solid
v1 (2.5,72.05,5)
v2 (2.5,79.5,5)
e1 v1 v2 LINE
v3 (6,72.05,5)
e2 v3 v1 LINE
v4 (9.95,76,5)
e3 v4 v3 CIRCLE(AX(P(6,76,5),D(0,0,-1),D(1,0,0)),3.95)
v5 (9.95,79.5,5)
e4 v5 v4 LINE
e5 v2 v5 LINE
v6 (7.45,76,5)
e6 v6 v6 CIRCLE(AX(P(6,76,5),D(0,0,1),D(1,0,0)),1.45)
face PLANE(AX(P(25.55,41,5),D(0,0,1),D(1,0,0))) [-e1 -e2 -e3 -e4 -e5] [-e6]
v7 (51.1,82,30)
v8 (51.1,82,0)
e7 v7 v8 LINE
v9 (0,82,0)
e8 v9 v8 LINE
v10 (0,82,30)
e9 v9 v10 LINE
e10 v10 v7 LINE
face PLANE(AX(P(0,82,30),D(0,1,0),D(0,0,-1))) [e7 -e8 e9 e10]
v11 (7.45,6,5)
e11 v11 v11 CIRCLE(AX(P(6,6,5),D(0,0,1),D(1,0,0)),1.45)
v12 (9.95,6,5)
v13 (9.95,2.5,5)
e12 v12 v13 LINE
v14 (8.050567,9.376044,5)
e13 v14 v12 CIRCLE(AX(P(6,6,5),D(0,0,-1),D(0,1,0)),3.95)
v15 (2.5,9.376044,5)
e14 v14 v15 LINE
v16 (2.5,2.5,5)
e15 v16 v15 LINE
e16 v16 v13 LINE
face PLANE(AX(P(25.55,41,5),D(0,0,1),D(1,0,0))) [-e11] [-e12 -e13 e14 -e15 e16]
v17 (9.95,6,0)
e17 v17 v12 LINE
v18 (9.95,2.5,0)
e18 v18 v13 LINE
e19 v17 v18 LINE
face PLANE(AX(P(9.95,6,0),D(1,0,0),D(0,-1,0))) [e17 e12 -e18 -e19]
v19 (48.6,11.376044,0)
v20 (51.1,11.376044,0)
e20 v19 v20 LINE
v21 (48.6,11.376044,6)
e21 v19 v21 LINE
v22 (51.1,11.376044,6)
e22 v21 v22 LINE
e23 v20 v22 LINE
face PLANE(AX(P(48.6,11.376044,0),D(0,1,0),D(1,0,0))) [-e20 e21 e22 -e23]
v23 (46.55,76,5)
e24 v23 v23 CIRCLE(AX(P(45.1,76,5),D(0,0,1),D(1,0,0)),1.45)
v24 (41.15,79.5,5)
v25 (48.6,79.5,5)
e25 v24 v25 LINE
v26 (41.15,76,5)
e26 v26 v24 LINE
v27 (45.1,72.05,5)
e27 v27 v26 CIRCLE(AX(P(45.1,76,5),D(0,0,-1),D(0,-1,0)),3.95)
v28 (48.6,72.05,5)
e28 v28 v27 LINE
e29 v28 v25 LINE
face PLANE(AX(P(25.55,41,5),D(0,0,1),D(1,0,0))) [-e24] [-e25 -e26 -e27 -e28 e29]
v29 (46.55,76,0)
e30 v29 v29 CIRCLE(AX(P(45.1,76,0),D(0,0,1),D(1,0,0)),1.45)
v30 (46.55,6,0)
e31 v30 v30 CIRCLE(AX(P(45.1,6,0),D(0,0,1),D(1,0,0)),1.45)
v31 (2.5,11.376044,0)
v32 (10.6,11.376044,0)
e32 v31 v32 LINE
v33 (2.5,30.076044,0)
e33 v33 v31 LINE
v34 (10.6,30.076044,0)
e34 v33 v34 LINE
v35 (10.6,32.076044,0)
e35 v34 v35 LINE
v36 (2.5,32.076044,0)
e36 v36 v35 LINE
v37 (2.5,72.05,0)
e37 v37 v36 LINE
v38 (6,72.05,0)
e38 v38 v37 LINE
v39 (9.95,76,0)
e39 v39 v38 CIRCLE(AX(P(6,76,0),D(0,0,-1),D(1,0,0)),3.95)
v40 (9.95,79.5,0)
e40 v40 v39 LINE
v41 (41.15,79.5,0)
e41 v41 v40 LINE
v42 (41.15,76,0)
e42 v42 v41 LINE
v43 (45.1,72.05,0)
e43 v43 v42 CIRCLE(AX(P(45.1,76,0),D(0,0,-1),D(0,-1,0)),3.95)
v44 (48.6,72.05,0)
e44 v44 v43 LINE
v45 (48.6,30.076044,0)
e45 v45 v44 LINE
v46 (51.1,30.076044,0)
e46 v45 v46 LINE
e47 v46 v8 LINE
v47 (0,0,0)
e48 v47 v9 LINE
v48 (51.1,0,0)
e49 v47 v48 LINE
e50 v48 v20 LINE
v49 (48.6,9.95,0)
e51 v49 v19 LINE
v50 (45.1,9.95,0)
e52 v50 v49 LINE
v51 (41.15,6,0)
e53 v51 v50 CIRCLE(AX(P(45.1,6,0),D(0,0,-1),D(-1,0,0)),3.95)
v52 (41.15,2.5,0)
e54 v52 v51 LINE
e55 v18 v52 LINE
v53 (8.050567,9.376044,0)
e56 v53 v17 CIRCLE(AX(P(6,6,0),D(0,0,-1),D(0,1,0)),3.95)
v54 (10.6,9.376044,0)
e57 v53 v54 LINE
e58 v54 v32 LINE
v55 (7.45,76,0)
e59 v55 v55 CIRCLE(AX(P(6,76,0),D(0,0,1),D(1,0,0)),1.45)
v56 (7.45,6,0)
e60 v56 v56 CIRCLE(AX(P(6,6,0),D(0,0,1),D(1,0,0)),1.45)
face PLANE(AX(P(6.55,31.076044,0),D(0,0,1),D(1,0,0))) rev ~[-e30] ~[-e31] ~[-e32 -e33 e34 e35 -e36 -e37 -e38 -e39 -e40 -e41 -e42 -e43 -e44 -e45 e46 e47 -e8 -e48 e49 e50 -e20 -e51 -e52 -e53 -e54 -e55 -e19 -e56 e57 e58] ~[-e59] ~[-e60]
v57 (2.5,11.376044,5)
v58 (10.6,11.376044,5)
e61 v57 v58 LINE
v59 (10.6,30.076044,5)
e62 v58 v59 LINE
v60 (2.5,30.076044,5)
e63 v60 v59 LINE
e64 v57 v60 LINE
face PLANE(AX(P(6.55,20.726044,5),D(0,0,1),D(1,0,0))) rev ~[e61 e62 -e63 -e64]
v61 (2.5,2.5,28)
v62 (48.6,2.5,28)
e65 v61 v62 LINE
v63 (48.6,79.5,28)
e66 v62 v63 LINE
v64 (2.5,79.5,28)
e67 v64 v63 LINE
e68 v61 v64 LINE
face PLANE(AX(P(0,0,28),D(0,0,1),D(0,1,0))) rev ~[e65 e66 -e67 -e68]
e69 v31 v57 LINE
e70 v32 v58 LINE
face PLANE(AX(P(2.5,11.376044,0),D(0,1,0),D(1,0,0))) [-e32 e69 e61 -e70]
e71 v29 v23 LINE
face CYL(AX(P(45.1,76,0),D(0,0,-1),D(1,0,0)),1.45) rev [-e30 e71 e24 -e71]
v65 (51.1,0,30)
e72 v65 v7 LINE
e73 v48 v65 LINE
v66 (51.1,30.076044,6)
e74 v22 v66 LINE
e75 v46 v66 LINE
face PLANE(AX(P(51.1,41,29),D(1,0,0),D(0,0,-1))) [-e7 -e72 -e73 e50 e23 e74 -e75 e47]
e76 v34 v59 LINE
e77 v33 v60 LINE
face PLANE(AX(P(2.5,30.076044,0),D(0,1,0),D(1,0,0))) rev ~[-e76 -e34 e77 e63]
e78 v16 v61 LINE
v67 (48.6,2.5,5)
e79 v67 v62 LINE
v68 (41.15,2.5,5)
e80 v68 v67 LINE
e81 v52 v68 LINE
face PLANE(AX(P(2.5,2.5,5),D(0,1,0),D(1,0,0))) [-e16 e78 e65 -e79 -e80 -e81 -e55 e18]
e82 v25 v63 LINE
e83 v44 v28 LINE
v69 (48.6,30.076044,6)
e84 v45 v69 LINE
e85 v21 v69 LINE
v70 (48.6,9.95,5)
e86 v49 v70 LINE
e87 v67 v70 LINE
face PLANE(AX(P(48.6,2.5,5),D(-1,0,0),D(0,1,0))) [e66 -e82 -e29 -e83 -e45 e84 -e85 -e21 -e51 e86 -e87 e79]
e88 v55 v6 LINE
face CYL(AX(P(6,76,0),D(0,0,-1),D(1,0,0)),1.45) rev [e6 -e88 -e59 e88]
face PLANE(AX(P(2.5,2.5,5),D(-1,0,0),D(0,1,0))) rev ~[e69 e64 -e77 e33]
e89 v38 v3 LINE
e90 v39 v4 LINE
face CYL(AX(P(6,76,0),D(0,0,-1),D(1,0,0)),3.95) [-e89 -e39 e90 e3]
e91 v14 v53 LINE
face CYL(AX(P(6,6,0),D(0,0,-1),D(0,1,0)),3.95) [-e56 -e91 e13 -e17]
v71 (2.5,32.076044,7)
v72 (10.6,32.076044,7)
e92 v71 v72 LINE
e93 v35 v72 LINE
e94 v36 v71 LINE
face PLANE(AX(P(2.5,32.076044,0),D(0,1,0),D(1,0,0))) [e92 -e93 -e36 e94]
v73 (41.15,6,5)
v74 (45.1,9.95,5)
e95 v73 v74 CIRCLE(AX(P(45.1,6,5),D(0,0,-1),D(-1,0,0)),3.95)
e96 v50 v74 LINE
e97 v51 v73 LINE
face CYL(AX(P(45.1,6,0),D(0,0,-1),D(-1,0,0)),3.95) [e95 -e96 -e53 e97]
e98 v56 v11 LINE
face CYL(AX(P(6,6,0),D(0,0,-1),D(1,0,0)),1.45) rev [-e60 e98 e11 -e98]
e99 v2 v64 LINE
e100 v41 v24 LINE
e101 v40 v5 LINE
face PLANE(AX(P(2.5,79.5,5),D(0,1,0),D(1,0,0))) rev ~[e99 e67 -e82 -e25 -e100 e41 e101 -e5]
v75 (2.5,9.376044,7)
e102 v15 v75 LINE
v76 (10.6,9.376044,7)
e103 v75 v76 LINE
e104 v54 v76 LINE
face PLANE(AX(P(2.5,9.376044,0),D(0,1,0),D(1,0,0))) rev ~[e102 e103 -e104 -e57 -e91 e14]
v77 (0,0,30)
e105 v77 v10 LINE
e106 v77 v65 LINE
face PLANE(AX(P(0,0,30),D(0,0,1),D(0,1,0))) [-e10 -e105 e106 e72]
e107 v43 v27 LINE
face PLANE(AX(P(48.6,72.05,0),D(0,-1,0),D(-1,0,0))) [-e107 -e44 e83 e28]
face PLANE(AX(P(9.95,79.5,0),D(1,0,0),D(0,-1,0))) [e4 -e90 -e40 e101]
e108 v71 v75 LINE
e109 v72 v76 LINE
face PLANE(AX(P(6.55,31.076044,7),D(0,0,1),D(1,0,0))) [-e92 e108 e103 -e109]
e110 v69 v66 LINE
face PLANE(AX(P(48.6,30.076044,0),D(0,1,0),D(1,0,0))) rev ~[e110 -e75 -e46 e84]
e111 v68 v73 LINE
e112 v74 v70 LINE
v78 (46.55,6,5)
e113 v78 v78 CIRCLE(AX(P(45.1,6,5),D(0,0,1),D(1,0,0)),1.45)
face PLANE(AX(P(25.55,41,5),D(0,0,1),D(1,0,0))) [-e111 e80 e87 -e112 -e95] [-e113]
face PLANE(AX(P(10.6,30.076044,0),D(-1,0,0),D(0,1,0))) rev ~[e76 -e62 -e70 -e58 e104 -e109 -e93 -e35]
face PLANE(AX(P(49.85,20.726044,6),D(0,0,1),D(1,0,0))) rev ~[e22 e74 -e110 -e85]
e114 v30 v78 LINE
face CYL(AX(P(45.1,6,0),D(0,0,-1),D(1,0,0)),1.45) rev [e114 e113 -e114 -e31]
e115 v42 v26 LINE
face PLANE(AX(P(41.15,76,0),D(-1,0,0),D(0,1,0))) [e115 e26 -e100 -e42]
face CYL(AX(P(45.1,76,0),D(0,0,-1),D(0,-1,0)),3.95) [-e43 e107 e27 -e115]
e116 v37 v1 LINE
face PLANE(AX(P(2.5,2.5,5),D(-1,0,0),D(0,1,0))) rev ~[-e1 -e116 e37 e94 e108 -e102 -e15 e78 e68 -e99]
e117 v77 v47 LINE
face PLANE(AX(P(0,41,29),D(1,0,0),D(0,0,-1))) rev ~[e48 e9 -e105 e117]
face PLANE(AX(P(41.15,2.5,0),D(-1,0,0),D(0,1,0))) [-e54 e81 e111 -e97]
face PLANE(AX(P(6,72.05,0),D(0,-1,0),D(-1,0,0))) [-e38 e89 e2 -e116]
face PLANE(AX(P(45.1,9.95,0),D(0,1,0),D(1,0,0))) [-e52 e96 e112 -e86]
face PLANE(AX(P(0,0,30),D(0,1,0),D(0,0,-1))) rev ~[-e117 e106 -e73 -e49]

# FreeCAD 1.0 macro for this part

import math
import FreeCAD as App
import Part
import Sketcher
Q = App.Units.Quantity


def add_polygon(sketch, points):
    """Adds a closed chain of lines whose ends are joined by coincident constraints."""
    first, n = sketch.GeometryCount, len(points)
    for a, b in zip(points, points[1:] + points[:1]):
        sketch.addGeometry(Part.LineSegment(App.Vector(*a, 0), App.Vector(*b, 0)), False)
    for i in range(n):
        sketch.addConstraint(Sketcher.Constraint("Coincident", first + i, 2, first + (i + 1) % n, 1))

doc = App.newDocument("Part")
body = doc.addObject("PartDesign::Body", "Body")

# Sketch on XY plane
sketch1 = body.newObject("Sketcher::SketchObject", "Sketch")
sketch1.AttachmentSupport = (doc.getObject("XY_Plane"), [""])
sketch1.MapMode = "FlatFace"
add_polygon(sketch1, [(0, 82), (0, 0), (51.1, 0), (51.1, 82)])  # lines 0-3
sketch1.addGeometry(Part.Circle(App.Vector(6, 6, 0), App.Vector(0, 0, 1), 1.4), False)  # 4
sketch1.addGeometry(Part.Circle(App.Vector(45.1, 6, 0), App.Vector(0, 0, 1), 1.4), False)  # 5
sketch1.addGeometry(Part.Circle(App.Vector(6, 76, 0), App.Vector(0, 0, 1), 1.4), False)  # 6
sketch1.addGeometry(Part.LineSegment(App.Vector(2.5, 72, 0), App.Vector(6, 72, 0)), False)  # 7
sketch1.addGeometry(Part.ArcOfCircle(Part.Circle(App.Vector(6, 76, 0), App.Vector(0, 0, 1), 3.9), math.radians(-90), math.radians(0)), False)  # 8
sketch1.addGeometry(Part.LineSegment(App.Vector(9.9, 76, 0), App.Vector(9.9, 79.5, 0)), False)  # 9
sketch1.addGeometry(Part.LineSegment(App.Vector(9.9, 79.5, 0), App.Vector(41.1, 79.5, 0)), False)  # 10
sketch1.addGeometry(Part.LineSegment(App.Vector(41.1, 79.5, 0), App.Vector(41.1, 76, 0)), False)  # 11
sketch1.addGeometry(Part.ArcOfCircle(Part.Circle(App.Vector(45.1, 76, 0), App.Vector(0, 0, 1), 3.9), math.radians(180), math.radians(270)), False)  # 12
sketch1.addGeometry(Part.LineSegment(App.Vector(45.1, 72, 0), App.Vector(48.6, 72, 0)), False)  # 13
sketch1.addGeometry(Part.LineSegment(App.Vector(48.6, 72, 0), App.Vector(48.6, 9.9, 0)), False)  # 14
sketch1.addGeometry(Part.LineSegment(App.Vector(48.6, 9.9, 0), App.Vector(45.1, 9.9, 0)), False)  # 15
sketch1.addGeometry(Part.ArcOfCircle(Part.Circle(App.Vector(45.1, 6, 0), App.Vector(0, 0, 1), 3.9), math.radians(90), math.radians(180)), False)  # 16
sketch1.addGeometry(Part.LineSegment(App.Vector(41.1, 6, 0), App.Vector(41.1, 2.5, 0)), False)  # 17
sketch1.addGeometry(Part.LineSegment(App.Vector(41.1, 2.5, 0), App.Vector(9.9, 2.5, 0)), False)  # 18
sketch1.addGeometry(Part.LineSegment(App.Vector(9.9, 2.5, 0), App.Vector(9.9, 6, 0)), False)  # 19
sketch1.addGeometry(Part.ArcOfCircle(Part.Circle(App.Vector(6, 6, 0), App.Vector(0, 0, 1), 3.9), math.radians(0), math.radians(90)), False)  # 20
sketch1.addGeometry(Part.LineSegment(App.Vector(6, 9.9, 0), App.Vector(2.5, 9.9, 0)), False)  # 21
sketch1.addGeometry(Part.LineSegment(App.Vector(2.5, 9.9, 0), App.Vector(2.5, 72, 0)), False)  # 22
sketch1.addGeometry(Part.Circle(App.Vector(45.1, 76, 0), App.Vector(0, 0, 1), 1.4), False)  # 23
sketch1.addConstraint([
    Sketcher.Constraint("Tangent", 7, 2, 8, 1),
    Sketcher.Constraint("Tangent", 8, 2, 9, 1),
    Sketcher.Constraint("Coincident", 9, 2, 10, 1),
    Sketcher.Constraint("Coincident", 10, 2, 11, 1),
    Sketcher.Constraint("Tangent", 11, 2, 12, 1),
    Sketcher.Constraint("Tangent", 12, 2, 13, 1),
    Sketcher.Constraint("Coincident", 13, 2, 14, 1),
    Sketcher.Constraint("Coincident", 14, 2, 15, 1),
    Sketcher.Constraint("Tangent", 15, 2, 16, 1),
    Sketcher.Constraint("Tangent", 16, 2, 17, 1),
    Sketcher.Constraint("Coincident", 17, 2, 18, 1),
    Sketcher.Constraint("Coincident", 18, 2, 19, 1),
    Sketcher.Constraint("Tangent", 19, 2, 20, 1),
    Sketcher.Constraint("Tangent", 20, 2, 21, 1),
    Sketcher.Constraint("Coincident", 21, 2, 22, 1),
    Sketcher.Constraint("Coincident", 22, 2, 7, 1),
    Sketcher.Constraint("Vertical", 0),
    Sketcher.Constraint("Horizontal", 1),
    Sketcher.Constraint("Vertical", 2),
    Sketcher.Constraint("Horizontal", 3),
    Sketcher.Constraint("Horizontal", 7),
    Sketcher.Constraint("Vertical", 9),
    Sketcher.Constraint("Horizontal", 10),
    Sketcher.Constraint("Vertical", 11),
    Sketcher.Constraint("Horizontal", 13),
    Sketcher.Constraint("Vertical", 14),
    Sketcher.Constraint("Horizontal", 15),
    Sketcher.Constraint("Vertical", 17),
    Sketcher.Constraint("Horizontal", 18),
    Sketcher.Constraint("Vertical", 19),
    Sketcher.Constraint("Horizontal", 21),
    Sketcher.Constraint("Vertical", 22),
    Sketcher.Constraint("Coincident", 0, 2, -1, 1),
    Sketcher.Constraint("Coincident", 8, 3, 6, 3),
    Sketcher.Constraint("Coincident", 16, 3, 5, 3),
    Sketcher.Constraint("Coincident", 20, 3, 4, 3),
    Sketcher.Constraint("Coincident", 23, 3, 12, 3),
    Sketcher.Constraint("Equal", 4, 5),
    Sketcher.Constraint("Equal", 5, 6),
    Sketcher.Constraint("Equal", 8, 12),
    Sketcher.Constraint("Equal", 12, 16),
    Sketcher.Constraint("Equal", 16, 20),
    Sketcher.Constraint("Equal", 6, 23),
    Sketcher.Constraint("Horizontal", 4, 3, 5, 3),
    Sketcher.Constraint("Horizontal", 8, 3, 12, 3),
    Sketcher.Constraint("Vertical", 4, 3, 6, 3),
    Sketcher.Constraint("Vertical", 5, 3, 12, 3),
    Sketcher.Constraint("Equal", 7, 13),
    Sketcher.Constraint("Equal", 21, 9),
    Sketcher.Constraint("Equal", 11, 17),
    Sketcher.Constraint("Diameter", 4, Q("2.9 mm")),
    Sketcher.Constraint("DistanceY", 0, 2, 0, 1, Q("82 mm")),
    Sketcher.Constraint("Radius", 8, Q("3.95 mm")),
    Sketcher.Constraint("DistanceX", 1, 1, 1, 2, Q("51.1 mm")),
    Sketcher.Constraint("DistanceX", 7, 1, 7, 2, Q("3.5 mm")),
    Sketcher.Constraint("DistanceX", 10, 1, 10, 2, Q("31.2 mm")),
    Sketcher.Constraint("DistanceY", 14, 2, 14, 1, Q("62.1 mm")),
    Sketcher.Constraint("DistanceX", -1, 1, 4, 3, Q("6 mm")),
    Sketcher.Constraint("DistanceY", -1, 1, 4, 3, Q("6 mm")),
])
pad1 = body.newObject("PartDesign::Pad", "Pad")
pad1.Profile = sketch1
pad1.Length = 5

# Sketch on XY plane
sketch2 = body.newObject("Sketcher::SketchObject", "Sketch001")
sketch2.AttachmentSupport = (doc.getObject("XY_Plane"), [""])
sketch2.MapMode = "FlatFace"
sketch2.AttachmentOffset = App.Placement(App.Vector(0, 0, 5), App.Rotation())
add_polygon(sketch2, [(0, 82), (0, 0), (51, 0), (51, 82)])  # lines 0-3
add_polygon(sketch2, [(49, 2), (2, 2), (2, 80), (49, 80)])  # lines 4-7
sketch2.addConstraint([
    Sketcher.Constraint("Vertical", 0),
    Sketcher.Constraint("Horizontal", 1),
    Sketcher.Constraint("Vertical", 2),
    Sketcher.Constraint("Horizontal", 3),
    Sketcher.Constraint("Horizontal", 4),
    Sketcher.Constraint("Vertical", 5),
    Sketcher.Constraint("Horizontal", 6),
    Sketcher.Constraint("Vertical", 7),
    Sketcher.Constraint("Coincident", 0, 2, -1, 1),
    Sketcher.Constraint("DistanceY", 0, 2, 0, 1, Q("82 mm")),
    Sketcher.Constraint("DistanceY", 5, 1, 5, 2, Q("77 mm")),
    Sketcher.Constraint("DistanceX", 1, 1, 1, 2, Q("51.1 mm")),
    Sketcher.Constraint("DistanceX", 4, 2, 4, 1, Q("46.1 mm")),
    Sketcher.Constraint("DistanceX", -1, 1, 4, 2, Q("2.5 mm")),
    Sketcher.Constraint("DistanceY", -1, 1, 4, 2, Q("2.5 mm")),
])
pad2 = body.newObject("PartDesign::Pad", "Pad001")
pad2.Profile = sketch2
pad2.Length = 23

# Sketch on YZ plane
sketch3 = body.newObject("Sketcher::SketchObject", "Sketch002")
sketch3.AttachmentSupport = (doc.getObject("YZ_Plane"), [""])
sketch3.MapMode = "FlatFace"
add_polygon(sketch3, [(82, 30), (0, 30), (0, 28), (82, 28)])  # lines 0-3
sketch3.addConstraint([
    Sketcher.Constraint("Horizontal", 0),
    Sketcher.Constraint("Vertical", 1),
    Sketcher.Constraint("Horizontal", 2),
    Sketcher.Constraint("Vertical", 3),
    Sketcher.Constraint("PointOnObject", 0, 2, -2),
    Sketcher.Constraint("DistanceX", 0, 2, 0, 1, Q("82 mm")),
    Sketcher.Constraint("DistanceY", 1, 2, 1, 1, Q("2 mm")),
    Sketcher.Constraint("DistanceY", -1, 1, 0, 2, Q("30 mm")),
])
pad3 = body.newObject("PartDesign::Pad", "Pad002")
pad3.Profile = sketch3
pad3.Length = 51.1

# Sketch on XY plane
sketch4 = body.newObject("Sketcher::SketchObject", "Sketch003")
sketch4.AttachmentSupport = (doc.getObject("XY_Plane"), [""])
sketch4.MapMode = "FlatFace"
add_polygon(sketch4, [(48.6, 30.1), (48.6, 11.4), (51.1, 11.4), (51.1, 30.1)])  # lines 0-3
sketch4.addConstraint([
    Sketcher.Constraint("Vertical", 0),
    Sketcher.Constraint("Horizontal", 1),
    Sketcher.Constraint("Vertical", 2),
    Sketcher.Constraint("Horizontal", 3),
    Sketcher.Constraint("DistanceX", 1, 1, 1, 2, Q("2.5 mm")),
    Sketcher.Constraint("DistanceY", 0, 2, 0, 1, Q("18.7 mm")),
    Sketcher.Constraint("DistanceX", -1, 1, 0, 2, Q("48.6 mm")),
    Sketcher.Constraint("DistanceY", -1, 1, 0, 2, Q("11.376044 mm")),
])
pocket1 = body.newObject("PartDesign::Pocket", "Pocket")
pocket1.Profile = sketch4
pocket1.Length = 6
pocket1.Reversed = True

# Sketch on XY plane
sketch5 = body.newObject("Sketcher::SketchObject", "Sketch004")
sketch5.AttachmentSupport = (doc.getObject("XY_Plane"), [""])
sketch5.MapMode = "FlatFace"
sketch5.AttachmentOffset = App.Placement(App.Vector(0, 0, 5), App.Rotation())
add_polygon(sketch5, [(2, 30), (2, 11), (11, 11), (11, 30)])  # lines 0-3
sketch5.addConstraint([
    Sketcher.Constraint("Vertical", 0),
    Sketcher.Constraint("Horizontal", 1),
    Sketcher.Constraint("Vertical", 2),
    Sketcher.Constraint("Horizontal", 3),
    Sketcher.Constraint("DistanceX", 1, 1, 1, 2, Q("8.1 mm")),
    Sketcher.Constraint("DistanceY", 0, 2, 0, 1, Q("18.7 mm")),
    Sketcher.Constraint("DistanceX", -1, 1, 0, 2, Q("2.5 mm")),
    Sketcher.Constraint("DistanceY", -1, 1, 0, 2, Q("11.376044 mm")),
])
pad4 = body.newObject("PartDesign::Pad", "Pad003")
pad4.Profile = sketch5
pad4.Length = 2

# Sketch on XY plane
sketch6 = body.newObject("Sketcher::SketchObject", "Sketch005")
sketch6.AttachmentSupport = (doc.getObject("XY_Plane"), [""])
sketch6.MapMode = "FlatFace"
add_polygon(sketch6, [(2.5, 32.1), (2.5, 30.1), (10.6, 30.1), (10.6, 32.1)])  # lines 0-3
add_polygon(sketch6, [(2.5, 11.4), (2.5, 9.4), (10.6, 9.4), (10.6, 11.4)])  # lines 4-7
sketch6.addConstraint([
    Sketcher.Constraint("Vertical", 0),
    Sketcher.Constraint("Horizontal", 1),
    Sketcher.Constraint("Vertical", 2),
    Sketcher.Constraint("Horizontal", 3),
    Sketcher.Constraint("Vertical", 4),
    Sketcher.Constraint("Horizontal", 5),
    Sketcher.Constraint("Vertical", 6),
    Sketcher.Constraint("Horizontal", 7),
    Sketcher.Constraint("Vertical", 3, 2, 4, 2),
    Sketcher.Constraint("Vertical", 2, 2, 5, 2),
    Sketcher.Constraint("Equal", 2, 4),
    Sketcher.Constraint("DistanceY", 0, 2, 0, 1, Q("2 mm")),
    Sketcher.Constraint("DistanceX", 1, 1, 1, 2, Q("8.1 mm")),
    Sketcher.Constraint("DistanceX", -1, 1, 0, 2, Q("2.5 mm")),
    Sketcher.Constraint("DistanceY", 4, 2, 0, 2, Q("20.7 mm")),
    Sketcher.Constraint("DistanceY", -1, 1, 0, 2, Q("30.076044 mm")),
])
pad5 = body.newObject("PartDesign::Pad", "Pad004")
pad5.Profile = sketch6
pad5.Length = 7

doc.recompute()
